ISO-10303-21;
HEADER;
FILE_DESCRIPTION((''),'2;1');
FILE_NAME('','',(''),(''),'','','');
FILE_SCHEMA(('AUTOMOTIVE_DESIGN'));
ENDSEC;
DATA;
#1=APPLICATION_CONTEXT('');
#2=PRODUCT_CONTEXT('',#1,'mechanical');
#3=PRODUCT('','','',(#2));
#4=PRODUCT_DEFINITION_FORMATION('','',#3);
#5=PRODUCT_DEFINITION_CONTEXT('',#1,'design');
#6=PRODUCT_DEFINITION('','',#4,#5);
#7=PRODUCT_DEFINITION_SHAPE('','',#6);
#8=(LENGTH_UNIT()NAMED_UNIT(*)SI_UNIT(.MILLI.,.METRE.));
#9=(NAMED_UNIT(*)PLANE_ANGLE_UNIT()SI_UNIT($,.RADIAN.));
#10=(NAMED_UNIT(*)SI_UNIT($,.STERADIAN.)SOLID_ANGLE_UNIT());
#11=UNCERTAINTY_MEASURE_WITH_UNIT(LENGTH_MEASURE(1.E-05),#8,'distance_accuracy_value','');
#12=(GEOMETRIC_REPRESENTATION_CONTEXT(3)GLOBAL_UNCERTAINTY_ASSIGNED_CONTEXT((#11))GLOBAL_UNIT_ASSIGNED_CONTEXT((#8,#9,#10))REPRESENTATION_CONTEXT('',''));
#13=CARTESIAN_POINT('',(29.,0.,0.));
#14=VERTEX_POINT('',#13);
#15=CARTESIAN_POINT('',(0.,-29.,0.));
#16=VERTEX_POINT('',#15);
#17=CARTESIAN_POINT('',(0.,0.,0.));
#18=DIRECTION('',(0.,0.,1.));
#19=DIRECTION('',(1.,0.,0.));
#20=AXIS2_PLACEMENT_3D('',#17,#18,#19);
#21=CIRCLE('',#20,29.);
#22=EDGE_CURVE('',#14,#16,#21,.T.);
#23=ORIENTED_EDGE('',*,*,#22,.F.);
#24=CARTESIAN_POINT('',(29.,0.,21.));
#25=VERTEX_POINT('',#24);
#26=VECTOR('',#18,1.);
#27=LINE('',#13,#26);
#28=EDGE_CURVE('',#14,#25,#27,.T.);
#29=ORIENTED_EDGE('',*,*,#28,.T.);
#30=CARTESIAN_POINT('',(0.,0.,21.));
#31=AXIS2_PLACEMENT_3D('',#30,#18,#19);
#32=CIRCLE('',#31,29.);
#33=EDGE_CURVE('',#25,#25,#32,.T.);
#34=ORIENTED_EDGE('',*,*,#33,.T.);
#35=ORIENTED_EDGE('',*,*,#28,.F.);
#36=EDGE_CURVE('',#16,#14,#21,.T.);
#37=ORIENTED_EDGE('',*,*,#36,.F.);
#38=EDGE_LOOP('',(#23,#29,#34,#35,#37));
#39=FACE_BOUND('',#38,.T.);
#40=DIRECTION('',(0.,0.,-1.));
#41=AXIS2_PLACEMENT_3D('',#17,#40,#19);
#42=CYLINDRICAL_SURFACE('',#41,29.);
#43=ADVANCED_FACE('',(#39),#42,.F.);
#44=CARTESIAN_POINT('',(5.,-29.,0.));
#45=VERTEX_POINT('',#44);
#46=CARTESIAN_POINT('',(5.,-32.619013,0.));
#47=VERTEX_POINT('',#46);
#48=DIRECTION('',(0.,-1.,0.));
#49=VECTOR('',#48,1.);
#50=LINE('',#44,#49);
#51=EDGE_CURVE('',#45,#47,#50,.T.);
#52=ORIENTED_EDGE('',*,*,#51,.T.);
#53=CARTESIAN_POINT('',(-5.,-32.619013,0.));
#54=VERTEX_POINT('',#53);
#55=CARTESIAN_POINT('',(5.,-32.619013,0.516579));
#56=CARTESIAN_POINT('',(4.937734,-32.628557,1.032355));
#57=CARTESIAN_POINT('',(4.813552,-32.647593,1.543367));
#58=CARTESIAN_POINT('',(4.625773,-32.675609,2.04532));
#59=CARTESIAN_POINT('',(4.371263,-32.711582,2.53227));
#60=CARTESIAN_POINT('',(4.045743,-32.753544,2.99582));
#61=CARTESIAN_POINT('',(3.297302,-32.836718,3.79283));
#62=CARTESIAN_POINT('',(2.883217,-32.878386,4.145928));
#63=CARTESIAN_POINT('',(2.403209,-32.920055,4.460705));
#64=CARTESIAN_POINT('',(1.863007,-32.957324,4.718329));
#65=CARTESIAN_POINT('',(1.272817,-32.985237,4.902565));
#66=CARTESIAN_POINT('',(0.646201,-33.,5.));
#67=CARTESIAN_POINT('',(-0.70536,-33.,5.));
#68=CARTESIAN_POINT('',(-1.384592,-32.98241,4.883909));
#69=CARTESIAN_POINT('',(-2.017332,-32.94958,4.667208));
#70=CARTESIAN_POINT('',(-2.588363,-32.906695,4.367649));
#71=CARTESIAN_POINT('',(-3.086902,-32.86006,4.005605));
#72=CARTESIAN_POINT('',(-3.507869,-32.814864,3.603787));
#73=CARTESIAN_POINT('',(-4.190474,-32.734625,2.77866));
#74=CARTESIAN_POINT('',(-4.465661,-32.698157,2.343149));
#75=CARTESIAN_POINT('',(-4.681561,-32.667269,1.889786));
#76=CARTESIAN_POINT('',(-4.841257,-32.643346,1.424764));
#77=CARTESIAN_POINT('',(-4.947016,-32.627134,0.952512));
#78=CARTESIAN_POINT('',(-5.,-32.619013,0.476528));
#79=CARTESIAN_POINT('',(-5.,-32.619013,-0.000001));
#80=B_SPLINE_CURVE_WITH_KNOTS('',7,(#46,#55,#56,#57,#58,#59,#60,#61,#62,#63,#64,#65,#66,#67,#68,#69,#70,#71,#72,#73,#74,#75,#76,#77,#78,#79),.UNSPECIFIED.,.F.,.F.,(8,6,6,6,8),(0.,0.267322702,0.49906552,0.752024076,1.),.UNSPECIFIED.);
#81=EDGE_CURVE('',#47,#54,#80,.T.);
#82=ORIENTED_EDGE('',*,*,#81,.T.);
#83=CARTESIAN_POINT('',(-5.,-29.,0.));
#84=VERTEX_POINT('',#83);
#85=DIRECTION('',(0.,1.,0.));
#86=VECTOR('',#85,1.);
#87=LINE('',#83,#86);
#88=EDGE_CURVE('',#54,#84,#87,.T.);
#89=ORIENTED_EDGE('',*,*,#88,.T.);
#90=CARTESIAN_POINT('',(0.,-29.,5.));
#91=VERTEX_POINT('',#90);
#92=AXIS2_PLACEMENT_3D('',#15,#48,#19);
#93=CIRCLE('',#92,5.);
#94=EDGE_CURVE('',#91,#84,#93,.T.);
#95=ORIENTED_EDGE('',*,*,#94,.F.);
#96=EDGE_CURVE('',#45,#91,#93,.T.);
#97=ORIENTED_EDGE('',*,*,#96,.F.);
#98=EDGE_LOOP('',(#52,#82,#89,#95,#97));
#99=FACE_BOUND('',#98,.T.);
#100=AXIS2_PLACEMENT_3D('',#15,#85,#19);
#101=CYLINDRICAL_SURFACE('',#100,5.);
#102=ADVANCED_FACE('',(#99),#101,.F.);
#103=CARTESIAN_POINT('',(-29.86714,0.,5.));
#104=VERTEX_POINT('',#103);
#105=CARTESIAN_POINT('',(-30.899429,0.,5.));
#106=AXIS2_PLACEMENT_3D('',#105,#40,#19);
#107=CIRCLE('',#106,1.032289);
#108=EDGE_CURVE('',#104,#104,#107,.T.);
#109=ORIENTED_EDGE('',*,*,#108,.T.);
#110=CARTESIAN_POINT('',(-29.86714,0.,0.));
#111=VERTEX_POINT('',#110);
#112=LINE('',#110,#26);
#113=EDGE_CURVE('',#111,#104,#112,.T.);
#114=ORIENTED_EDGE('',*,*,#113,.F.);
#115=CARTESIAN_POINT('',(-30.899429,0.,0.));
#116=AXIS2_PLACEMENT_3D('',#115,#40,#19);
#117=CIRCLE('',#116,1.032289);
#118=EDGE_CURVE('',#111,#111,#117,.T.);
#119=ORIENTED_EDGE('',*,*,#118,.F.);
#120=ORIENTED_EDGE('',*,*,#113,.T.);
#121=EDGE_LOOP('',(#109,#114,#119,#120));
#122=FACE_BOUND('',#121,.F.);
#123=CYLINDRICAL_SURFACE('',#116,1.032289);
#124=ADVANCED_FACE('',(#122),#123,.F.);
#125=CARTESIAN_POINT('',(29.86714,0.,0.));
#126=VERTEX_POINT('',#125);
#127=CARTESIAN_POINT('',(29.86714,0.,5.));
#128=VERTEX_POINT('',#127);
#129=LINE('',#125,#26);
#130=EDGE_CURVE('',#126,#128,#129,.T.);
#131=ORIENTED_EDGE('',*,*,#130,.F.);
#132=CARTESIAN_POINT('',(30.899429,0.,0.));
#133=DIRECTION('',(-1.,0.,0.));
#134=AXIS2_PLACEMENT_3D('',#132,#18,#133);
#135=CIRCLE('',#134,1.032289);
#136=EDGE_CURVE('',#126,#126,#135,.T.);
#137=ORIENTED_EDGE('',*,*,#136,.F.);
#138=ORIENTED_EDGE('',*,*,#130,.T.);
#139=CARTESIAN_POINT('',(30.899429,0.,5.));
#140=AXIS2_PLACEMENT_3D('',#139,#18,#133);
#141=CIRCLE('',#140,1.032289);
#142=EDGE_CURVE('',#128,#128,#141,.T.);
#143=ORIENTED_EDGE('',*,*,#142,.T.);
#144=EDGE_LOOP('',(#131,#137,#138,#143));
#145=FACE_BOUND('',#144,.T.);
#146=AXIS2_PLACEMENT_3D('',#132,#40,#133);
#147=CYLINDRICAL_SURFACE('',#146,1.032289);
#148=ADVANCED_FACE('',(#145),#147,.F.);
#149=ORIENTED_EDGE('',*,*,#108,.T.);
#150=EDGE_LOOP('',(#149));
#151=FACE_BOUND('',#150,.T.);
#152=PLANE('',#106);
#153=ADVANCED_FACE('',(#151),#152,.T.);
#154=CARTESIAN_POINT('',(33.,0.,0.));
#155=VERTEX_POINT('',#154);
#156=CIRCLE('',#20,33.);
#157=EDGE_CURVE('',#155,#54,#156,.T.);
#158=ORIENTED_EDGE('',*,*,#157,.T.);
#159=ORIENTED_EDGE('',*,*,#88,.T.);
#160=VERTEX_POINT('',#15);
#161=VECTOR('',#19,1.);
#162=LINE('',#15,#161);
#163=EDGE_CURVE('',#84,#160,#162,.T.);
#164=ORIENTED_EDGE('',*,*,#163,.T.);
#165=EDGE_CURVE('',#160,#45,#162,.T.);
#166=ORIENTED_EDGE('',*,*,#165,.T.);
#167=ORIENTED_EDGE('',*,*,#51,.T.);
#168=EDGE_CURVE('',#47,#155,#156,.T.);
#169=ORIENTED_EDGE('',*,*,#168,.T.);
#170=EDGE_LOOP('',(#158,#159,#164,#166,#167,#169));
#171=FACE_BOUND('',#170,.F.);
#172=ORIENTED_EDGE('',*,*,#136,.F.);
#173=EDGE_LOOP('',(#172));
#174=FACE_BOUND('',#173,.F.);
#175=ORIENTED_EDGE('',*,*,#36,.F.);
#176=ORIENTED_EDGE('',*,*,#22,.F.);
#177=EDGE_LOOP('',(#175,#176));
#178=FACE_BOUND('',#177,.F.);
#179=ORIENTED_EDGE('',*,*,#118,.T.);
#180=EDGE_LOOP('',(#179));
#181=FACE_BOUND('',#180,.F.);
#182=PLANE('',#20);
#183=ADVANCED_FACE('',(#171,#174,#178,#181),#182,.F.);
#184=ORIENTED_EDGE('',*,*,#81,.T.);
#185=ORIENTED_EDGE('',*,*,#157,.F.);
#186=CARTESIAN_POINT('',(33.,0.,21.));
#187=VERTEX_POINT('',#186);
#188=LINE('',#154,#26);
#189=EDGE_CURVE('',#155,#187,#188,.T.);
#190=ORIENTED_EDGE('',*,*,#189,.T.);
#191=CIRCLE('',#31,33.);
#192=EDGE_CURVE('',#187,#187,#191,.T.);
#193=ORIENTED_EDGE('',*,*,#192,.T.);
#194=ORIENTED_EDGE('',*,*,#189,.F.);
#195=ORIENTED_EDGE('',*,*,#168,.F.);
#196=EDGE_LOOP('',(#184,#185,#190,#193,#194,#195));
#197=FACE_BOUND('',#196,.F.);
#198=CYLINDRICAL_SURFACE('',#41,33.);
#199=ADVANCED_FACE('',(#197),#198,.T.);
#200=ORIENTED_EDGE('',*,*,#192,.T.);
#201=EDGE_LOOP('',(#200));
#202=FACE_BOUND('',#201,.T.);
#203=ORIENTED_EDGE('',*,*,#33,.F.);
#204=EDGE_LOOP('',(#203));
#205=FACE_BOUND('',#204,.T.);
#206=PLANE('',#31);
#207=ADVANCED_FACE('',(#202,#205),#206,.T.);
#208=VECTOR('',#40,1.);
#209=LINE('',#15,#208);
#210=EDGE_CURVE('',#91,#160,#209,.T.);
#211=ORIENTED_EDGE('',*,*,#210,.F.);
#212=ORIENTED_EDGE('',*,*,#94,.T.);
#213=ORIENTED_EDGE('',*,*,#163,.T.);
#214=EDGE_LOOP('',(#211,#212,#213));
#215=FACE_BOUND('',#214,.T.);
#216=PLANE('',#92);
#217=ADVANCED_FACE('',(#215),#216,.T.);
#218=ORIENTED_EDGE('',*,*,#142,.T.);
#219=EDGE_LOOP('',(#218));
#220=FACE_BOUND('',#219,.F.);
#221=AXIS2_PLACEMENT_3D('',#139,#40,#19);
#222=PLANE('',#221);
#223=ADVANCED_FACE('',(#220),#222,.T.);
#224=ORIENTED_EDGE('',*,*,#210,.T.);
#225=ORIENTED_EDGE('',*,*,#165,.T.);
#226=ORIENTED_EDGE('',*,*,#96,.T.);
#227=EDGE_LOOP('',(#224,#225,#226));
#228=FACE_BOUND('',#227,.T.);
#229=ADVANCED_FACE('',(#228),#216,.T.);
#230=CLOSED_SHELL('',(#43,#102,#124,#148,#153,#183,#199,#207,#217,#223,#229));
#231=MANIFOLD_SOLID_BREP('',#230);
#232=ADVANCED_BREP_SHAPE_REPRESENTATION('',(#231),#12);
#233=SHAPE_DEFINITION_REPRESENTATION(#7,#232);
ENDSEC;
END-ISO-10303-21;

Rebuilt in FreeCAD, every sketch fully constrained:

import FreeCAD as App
import Part
import Sketcher

V = App.Vector
Q = App.Units.Quantity

doc = App.newDocument("Part")
body = doc.addObject("PartDesign::Body", "Body")

sketch1 = body.newObject("Sketcher::SketchObject", "Sketch")
sketch1.AttachmentSupport = (doc.getObject("XZ_Plane"), [""])
sketch1.MapMode = "FlatFace"
sketch1.AttachmentOffset = App.Placement(V(0, 0, 29), App.Rotation())
sketch1.addGeometry(Part.Circle(V(0, 0, 0), V(0, 0, 1), 5), False)
sketch1.addConstraint(Sketcher.Constraint("Coincident", 0, 3, -1, 1))
sketch1.addConstraint(Sketcher.Constraint("Diameter", 0, Q("10 mm")))
pad1 = body.newObject("PartDesign::Pad", "Pad")
pad1.Profile = sketch1
pad1.Length = 10
body2 = doc.addObject("PartDesign::Body", "Body001")

sketch2 = body2.newObject("Sketcher::SketchObject", "Sketch001")
sketch2.AttachmentSupport = (doc.getObject("XY_Plane001"), [""])
sketch2.MapMode = "FlatFace"
sketch2.addGeometry(Part.Circle(V(0, 0, 0), V(0, 0, 1), 33), False)
sketch2.addGeometry(Part.Circle(V(0, 0, 0), V(0, 0, 1), 29), False)
sketch2.addConstraint(Sketcher.Constraint("Coincident", 0, 3, -1, 1))
sketch2.addConstraint(Sketcher.Constraint("Coincident", 1, 3, -1, 1))
sketch2.addConstraint(Sketcher.Constraint("Diameter", 0, Q("66 mm")))
sketch2.addConstraint(Sketcher.Constraint("Diameter", 1, Q("58 mm")))
pad2 = body2.newObject("PartDesign::Pad", "Pad001")
pad2.Profile = sketch2
pad2.Length = 21
doc.recompute()

boolean = body2.newObject("PartDesign::Boolean", "Boolean")
boolean.Type = "Cut"
boolean.addObjects([body])

sketch3 = body2.newObject("Sketcher::SketchObject", "Sketch002")
sketch3.AttachmentSupport = (doc.getObject("XY_Plane001"), [""])
sketch3.MapMode = "FlatFace"
sketch3.addGeometry(Part.Circle(V(-30.9, 0, 0), V(0, 0, 1), 1), False)
sketch3.addConstraint(Sketcher.Constraint("PointOnObject", 0, 3, -1))
sketch3.addConstraint(Sketcher.Constraint("Diameter", 0, Q("2.064578 mm")))
sketch3.addConstraint(Sketcher.Constraint("DistanceX", 0, 3, -1, 1, Q("30.899429 mm")))
pocket1 = body2.newObject("PartDesign::Pocket", "Pocket")
pocket1.Profile = sketch3
pocket1.Length = 5
pocket1.Reversed = True
doc.recompute()

mirrored = body2.newObject("PartDesign::Mirrored", "Mirrored")
mirrored.Originals = [pocket1]
mirrored.MirrorPlane = (doc.getObject("YZ_Plane001"), [""])
body2.Tip = mirrored

doc.recompute()
